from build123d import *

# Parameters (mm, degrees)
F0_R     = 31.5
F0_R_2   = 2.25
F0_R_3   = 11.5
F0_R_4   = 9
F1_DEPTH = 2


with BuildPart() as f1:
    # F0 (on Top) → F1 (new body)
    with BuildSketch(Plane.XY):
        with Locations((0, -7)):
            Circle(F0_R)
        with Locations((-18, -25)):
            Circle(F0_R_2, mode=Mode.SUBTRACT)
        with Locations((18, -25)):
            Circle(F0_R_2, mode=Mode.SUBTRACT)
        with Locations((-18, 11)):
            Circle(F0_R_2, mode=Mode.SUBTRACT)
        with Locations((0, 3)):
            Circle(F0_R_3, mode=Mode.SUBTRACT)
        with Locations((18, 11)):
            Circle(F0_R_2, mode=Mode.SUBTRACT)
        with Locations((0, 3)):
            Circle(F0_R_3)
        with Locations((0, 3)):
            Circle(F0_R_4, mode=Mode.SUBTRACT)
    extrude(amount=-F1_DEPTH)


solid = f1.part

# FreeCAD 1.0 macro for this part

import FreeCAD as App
import Part
import Sketcher
from FreeCAD import Vector
Q = App.Units.Quantity

doc = App.newDocument("Part")
body = doc.addObject("PartDesign::Body", "Body")

# Sketch on XY plane
sketch1 = doc.addObject("Sketcher::SketchObject", "Sketch")
body.addObject(sketch1)
sketch1.AttachmentSupport = (doc.XY_Plane, [""])
sketch1.MapMode = "FlatFace"
sketch1.addGeometry([
    Part.Circle(Vector(0, -7, 0), Vector(0, 0, 1), 31.5),  # 0
    Part.Circle(Vector(-18, -25, 0), Vector(0, 0, 1), 2.2),  # 1
    Part.Circle(Vector(18, -25, 0), Vector(0, 0, 1), 2.2),  # 2
    Part.Circle(Vector(-18, 11, 0), Vector(0, 0, 1), 2.2),  # 3
    Part.Circle(Vector(0, 3, 0), Vector(0, 0, 1), 9),  # 4
    Part.Circle(Vector(18, 11, 0), Vector(0, 0, 1), 2.2),  # 5
], False)
sketch1.addConstraint([
    Sketcher.Constraint("Equal", 1, 2),
    Sketcher.Constraint("Equal", 2, 3),
    Sketcher.Constraint("Equal", 3, 5),
    Sketcher.Constraint("Symmetric", 1, 3, 2, 3, -2),
    Sketcher.Constraint("Symmetric", 3, 3, 5, 3, -2),
    Sketcher.Constraint("PointOnObject", 0, 3, -2),
    Sketcher.Constraint("PointOnObject", 4, 3, -2),
    Sketcher.Constraint("Vertical", 1, 3, 3, 3),
    Sketcher.Constraint("Diameter", 0, Q("63 mm")),
    Sketcher.Constraint("Diameter", 4, Q("18 mm")),
    Sketcher.Constraint("Diameter", 1, Q("4.5 mm")),
    Sketcher.Constraint("DistanceY", 0, 3, -1, 1, Q("7 mm")),
    Sketcher.Constraint("DistanceX", 1, 3, -1, 1, Q("18 mm")),
    Sketcher.Constraint("DistanceY", 1, 3, -1, 1, Q("25 mm")),
    Sketcher.Constraint("DistanceY", -1, 1, 3, 3, Q("11 mm")),
    Sketcher.Constraint("DistanceY", -1, 1, 4, 3, Q("3 mm")),
])
pad1 = doc.addObject("PartDesign::Pad", "Pad")
body.addObject(pad1)
pad1.Profile = sketch1
pad1.Length = 2
pad1.Reversed = True

doc.recompute()
